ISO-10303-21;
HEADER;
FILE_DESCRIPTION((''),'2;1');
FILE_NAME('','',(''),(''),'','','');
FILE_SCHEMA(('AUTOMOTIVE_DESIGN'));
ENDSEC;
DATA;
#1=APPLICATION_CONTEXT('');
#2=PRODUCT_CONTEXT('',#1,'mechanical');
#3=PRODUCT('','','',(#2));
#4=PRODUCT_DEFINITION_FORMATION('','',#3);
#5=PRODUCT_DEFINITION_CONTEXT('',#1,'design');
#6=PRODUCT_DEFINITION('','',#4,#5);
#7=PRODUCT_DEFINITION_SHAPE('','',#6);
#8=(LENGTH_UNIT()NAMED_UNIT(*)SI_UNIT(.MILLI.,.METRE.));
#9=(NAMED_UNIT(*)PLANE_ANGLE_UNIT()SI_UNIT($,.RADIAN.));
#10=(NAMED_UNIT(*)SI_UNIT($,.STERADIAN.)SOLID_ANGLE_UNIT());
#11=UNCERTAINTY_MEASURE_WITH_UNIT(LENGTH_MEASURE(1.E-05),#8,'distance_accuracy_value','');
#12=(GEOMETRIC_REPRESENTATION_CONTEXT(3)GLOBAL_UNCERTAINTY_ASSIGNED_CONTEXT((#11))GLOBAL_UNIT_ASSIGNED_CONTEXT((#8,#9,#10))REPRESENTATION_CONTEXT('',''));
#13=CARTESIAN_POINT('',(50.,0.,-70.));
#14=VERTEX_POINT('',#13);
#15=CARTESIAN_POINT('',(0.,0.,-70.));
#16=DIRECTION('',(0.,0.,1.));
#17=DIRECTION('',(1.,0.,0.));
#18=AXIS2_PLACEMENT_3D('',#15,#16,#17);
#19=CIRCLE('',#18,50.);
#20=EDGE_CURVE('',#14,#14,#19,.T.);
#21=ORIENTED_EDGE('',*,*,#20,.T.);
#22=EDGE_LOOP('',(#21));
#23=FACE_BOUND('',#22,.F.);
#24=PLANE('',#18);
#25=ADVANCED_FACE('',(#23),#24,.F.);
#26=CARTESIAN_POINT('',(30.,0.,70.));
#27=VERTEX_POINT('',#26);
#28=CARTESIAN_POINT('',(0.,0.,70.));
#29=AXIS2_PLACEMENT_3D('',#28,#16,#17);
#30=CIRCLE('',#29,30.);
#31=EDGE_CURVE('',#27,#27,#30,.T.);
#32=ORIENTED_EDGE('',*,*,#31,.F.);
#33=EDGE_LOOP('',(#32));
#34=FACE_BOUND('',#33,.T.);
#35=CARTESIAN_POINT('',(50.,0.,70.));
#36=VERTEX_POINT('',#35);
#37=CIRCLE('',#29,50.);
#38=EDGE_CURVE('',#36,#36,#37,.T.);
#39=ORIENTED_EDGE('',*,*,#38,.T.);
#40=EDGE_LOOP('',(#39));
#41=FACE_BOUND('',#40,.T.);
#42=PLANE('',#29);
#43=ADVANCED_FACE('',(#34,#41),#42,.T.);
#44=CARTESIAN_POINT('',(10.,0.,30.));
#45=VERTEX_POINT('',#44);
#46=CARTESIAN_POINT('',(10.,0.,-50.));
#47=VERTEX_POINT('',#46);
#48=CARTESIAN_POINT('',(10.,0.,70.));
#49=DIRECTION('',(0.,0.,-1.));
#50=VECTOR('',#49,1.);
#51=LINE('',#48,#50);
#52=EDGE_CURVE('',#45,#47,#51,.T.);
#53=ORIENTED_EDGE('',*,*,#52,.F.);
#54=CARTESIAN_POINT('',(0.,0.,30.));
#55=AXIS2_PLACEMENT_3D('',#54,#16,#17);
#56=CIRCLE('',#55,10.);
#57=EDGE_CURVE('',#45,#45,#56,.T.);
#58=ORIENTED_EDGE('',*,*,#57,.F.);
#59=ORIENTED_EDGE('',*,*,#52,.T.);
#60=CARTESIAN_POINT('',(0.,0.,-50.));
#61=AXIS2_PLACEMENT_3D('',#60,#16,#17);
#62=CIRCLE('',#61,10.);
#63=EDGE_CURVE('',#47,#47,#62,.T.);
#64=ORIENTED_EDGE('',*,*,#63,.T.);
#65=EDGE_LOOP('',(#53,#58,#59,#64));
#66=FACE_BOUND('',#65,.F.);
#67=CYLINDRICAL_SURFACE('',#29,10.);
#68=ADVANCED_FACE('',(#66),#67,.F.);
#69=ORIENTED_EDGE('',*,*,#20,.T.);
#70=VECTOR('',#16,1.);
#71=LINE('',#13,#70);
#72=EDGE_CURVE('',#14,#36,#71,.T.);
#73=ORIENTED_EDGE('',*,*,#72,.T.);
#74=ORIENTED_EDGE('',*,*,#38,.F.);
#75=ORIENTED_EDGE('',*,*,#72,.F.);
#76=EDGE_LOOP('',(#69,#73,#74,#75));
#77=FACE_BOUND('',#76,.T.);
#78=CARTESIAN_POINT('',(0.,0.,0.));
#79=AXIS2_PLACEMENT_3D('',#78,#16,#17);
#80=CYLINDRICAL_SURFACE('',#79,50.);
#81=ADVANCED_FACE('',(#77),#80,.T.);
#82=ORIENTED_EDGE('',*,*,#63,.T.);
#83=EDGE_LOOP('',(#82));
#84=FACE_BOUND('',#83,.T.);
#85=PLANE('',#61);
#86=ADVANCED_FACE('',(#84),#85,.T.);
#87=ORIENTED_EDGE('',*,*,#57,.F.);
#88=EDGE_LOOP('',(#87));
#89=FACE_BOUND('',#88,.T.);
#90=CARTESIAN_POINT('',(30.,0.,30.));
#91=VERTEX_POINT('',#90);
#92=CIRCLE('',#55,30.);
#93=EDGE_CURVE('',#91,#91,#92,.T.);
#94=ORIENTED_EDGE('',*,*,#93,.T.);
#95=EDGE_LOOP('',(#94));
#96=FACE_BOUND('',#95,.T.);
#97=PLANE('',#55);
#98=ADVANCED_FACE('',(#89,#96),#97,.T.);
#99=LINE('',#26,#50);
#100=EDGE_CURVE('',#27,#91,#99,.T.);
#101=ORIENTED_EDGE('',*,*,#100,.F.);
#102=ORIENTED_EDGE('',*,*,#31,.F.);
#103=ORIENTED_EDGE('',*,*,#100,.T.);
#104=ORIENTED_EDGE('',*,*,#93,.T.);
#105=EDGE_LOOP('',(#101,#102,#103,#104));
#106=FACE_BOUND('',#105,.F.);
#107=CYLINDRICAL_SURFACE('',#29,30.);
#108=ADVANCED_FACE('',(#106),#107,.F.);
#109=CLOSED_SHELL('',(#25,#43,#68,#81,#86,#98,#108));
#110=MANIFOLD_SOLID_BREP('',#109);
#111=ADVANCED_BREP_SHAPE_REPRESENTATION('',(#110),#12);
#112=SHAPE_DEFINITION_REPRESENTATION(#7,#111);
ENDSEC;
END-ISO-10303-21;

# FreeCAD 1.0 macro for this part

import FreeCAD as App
import Part
import Sketcher
from FreeCAD import Vector

doc = App.newDocument("Part")
body = doc.addObject("PartDesign::Body", "Body")

sketch1 = body.newObject("Sketcher::SketchObject", "Sketch")
sketch1.AttachmentSupport = (doc.getObject("XY_Plane"), [""])
sketch1.MapMode = "FlatFace"
sketch1.addGeometry(Part.Circle(Vector(0, 0, 0), Vector(0, 0, 1), 50), False)
sketch1.addConstraint([
    Sketcher.Constraint("Coincident", 0, 3, -1, 1),
    Sketcher.Constraint("Diameter", 0, 100.0),
])
pad1 = body.newObject("PartDesign::Pad", "Pad")
pad1.Profile = sketch1
pad1.Length = 140
pad1.Midplane = True

sketch2 = body.newObject("Sketcher::SketchObject", "Sketch001")
sketch2.AttachmentSupport = (doc.getObject("XY_Plane"), [""])
sketch2.MapMode = "FlatFace"
sketch2.AttachmentOffset = App.Placement(Vector(0, 0, 70), App.Rotation())
sketch2.addGeometry(Part.Circle(Vector(0, 0, 0), Vector(0, 0, 1), 10), False)
sketch2.addConstraint([
    Sketcher.Constraint("Coincident", 0, 3, -1, 1),
    Sketcher.Constraint("Diameter", 0, 20.0),
])
pocket1 = body.newObject("PartDesign::Pocket", "Pocket")
pocket1.Profile = sketch2
pocket1.Length = 120

sketch3 = body.newObject("Sketcher::SketchObject", "Sketch002")
sketch3.AttachmentSupport = (doc.getObject("XY_Plane"), [""])
sketch3.MapMode = "FlatFace"
sketch3.AttachmentOffset = App.Placement(Vector(0, 0, 70), App.Rotation())
sketch3.addGeometry([
    Part.Circle(Vector(0, 0, 0), Vector(0, 0, 1), 30),
    Part.Circle(Vector(0, 0, 0), Vector(0, 0, 1), 10),
], False)
sketch3.addConstraint([
    Sketcher.Constraint("Coincident", 0, 3, -1, 1),
    Sketcher.Constraint("Coincident", 1, 3, -1, 1),
    Sketcher.Constraint("Diameter", 0, 60.0),
    Sketcher.Constraint("Diameter", 1, 20.0),
])
pocket2 = body.newObject("PartDesign::Pocket", "Pocket001")
pocket2.Profile = sketch3
pocket2.Length = 40

doc.recompute()
